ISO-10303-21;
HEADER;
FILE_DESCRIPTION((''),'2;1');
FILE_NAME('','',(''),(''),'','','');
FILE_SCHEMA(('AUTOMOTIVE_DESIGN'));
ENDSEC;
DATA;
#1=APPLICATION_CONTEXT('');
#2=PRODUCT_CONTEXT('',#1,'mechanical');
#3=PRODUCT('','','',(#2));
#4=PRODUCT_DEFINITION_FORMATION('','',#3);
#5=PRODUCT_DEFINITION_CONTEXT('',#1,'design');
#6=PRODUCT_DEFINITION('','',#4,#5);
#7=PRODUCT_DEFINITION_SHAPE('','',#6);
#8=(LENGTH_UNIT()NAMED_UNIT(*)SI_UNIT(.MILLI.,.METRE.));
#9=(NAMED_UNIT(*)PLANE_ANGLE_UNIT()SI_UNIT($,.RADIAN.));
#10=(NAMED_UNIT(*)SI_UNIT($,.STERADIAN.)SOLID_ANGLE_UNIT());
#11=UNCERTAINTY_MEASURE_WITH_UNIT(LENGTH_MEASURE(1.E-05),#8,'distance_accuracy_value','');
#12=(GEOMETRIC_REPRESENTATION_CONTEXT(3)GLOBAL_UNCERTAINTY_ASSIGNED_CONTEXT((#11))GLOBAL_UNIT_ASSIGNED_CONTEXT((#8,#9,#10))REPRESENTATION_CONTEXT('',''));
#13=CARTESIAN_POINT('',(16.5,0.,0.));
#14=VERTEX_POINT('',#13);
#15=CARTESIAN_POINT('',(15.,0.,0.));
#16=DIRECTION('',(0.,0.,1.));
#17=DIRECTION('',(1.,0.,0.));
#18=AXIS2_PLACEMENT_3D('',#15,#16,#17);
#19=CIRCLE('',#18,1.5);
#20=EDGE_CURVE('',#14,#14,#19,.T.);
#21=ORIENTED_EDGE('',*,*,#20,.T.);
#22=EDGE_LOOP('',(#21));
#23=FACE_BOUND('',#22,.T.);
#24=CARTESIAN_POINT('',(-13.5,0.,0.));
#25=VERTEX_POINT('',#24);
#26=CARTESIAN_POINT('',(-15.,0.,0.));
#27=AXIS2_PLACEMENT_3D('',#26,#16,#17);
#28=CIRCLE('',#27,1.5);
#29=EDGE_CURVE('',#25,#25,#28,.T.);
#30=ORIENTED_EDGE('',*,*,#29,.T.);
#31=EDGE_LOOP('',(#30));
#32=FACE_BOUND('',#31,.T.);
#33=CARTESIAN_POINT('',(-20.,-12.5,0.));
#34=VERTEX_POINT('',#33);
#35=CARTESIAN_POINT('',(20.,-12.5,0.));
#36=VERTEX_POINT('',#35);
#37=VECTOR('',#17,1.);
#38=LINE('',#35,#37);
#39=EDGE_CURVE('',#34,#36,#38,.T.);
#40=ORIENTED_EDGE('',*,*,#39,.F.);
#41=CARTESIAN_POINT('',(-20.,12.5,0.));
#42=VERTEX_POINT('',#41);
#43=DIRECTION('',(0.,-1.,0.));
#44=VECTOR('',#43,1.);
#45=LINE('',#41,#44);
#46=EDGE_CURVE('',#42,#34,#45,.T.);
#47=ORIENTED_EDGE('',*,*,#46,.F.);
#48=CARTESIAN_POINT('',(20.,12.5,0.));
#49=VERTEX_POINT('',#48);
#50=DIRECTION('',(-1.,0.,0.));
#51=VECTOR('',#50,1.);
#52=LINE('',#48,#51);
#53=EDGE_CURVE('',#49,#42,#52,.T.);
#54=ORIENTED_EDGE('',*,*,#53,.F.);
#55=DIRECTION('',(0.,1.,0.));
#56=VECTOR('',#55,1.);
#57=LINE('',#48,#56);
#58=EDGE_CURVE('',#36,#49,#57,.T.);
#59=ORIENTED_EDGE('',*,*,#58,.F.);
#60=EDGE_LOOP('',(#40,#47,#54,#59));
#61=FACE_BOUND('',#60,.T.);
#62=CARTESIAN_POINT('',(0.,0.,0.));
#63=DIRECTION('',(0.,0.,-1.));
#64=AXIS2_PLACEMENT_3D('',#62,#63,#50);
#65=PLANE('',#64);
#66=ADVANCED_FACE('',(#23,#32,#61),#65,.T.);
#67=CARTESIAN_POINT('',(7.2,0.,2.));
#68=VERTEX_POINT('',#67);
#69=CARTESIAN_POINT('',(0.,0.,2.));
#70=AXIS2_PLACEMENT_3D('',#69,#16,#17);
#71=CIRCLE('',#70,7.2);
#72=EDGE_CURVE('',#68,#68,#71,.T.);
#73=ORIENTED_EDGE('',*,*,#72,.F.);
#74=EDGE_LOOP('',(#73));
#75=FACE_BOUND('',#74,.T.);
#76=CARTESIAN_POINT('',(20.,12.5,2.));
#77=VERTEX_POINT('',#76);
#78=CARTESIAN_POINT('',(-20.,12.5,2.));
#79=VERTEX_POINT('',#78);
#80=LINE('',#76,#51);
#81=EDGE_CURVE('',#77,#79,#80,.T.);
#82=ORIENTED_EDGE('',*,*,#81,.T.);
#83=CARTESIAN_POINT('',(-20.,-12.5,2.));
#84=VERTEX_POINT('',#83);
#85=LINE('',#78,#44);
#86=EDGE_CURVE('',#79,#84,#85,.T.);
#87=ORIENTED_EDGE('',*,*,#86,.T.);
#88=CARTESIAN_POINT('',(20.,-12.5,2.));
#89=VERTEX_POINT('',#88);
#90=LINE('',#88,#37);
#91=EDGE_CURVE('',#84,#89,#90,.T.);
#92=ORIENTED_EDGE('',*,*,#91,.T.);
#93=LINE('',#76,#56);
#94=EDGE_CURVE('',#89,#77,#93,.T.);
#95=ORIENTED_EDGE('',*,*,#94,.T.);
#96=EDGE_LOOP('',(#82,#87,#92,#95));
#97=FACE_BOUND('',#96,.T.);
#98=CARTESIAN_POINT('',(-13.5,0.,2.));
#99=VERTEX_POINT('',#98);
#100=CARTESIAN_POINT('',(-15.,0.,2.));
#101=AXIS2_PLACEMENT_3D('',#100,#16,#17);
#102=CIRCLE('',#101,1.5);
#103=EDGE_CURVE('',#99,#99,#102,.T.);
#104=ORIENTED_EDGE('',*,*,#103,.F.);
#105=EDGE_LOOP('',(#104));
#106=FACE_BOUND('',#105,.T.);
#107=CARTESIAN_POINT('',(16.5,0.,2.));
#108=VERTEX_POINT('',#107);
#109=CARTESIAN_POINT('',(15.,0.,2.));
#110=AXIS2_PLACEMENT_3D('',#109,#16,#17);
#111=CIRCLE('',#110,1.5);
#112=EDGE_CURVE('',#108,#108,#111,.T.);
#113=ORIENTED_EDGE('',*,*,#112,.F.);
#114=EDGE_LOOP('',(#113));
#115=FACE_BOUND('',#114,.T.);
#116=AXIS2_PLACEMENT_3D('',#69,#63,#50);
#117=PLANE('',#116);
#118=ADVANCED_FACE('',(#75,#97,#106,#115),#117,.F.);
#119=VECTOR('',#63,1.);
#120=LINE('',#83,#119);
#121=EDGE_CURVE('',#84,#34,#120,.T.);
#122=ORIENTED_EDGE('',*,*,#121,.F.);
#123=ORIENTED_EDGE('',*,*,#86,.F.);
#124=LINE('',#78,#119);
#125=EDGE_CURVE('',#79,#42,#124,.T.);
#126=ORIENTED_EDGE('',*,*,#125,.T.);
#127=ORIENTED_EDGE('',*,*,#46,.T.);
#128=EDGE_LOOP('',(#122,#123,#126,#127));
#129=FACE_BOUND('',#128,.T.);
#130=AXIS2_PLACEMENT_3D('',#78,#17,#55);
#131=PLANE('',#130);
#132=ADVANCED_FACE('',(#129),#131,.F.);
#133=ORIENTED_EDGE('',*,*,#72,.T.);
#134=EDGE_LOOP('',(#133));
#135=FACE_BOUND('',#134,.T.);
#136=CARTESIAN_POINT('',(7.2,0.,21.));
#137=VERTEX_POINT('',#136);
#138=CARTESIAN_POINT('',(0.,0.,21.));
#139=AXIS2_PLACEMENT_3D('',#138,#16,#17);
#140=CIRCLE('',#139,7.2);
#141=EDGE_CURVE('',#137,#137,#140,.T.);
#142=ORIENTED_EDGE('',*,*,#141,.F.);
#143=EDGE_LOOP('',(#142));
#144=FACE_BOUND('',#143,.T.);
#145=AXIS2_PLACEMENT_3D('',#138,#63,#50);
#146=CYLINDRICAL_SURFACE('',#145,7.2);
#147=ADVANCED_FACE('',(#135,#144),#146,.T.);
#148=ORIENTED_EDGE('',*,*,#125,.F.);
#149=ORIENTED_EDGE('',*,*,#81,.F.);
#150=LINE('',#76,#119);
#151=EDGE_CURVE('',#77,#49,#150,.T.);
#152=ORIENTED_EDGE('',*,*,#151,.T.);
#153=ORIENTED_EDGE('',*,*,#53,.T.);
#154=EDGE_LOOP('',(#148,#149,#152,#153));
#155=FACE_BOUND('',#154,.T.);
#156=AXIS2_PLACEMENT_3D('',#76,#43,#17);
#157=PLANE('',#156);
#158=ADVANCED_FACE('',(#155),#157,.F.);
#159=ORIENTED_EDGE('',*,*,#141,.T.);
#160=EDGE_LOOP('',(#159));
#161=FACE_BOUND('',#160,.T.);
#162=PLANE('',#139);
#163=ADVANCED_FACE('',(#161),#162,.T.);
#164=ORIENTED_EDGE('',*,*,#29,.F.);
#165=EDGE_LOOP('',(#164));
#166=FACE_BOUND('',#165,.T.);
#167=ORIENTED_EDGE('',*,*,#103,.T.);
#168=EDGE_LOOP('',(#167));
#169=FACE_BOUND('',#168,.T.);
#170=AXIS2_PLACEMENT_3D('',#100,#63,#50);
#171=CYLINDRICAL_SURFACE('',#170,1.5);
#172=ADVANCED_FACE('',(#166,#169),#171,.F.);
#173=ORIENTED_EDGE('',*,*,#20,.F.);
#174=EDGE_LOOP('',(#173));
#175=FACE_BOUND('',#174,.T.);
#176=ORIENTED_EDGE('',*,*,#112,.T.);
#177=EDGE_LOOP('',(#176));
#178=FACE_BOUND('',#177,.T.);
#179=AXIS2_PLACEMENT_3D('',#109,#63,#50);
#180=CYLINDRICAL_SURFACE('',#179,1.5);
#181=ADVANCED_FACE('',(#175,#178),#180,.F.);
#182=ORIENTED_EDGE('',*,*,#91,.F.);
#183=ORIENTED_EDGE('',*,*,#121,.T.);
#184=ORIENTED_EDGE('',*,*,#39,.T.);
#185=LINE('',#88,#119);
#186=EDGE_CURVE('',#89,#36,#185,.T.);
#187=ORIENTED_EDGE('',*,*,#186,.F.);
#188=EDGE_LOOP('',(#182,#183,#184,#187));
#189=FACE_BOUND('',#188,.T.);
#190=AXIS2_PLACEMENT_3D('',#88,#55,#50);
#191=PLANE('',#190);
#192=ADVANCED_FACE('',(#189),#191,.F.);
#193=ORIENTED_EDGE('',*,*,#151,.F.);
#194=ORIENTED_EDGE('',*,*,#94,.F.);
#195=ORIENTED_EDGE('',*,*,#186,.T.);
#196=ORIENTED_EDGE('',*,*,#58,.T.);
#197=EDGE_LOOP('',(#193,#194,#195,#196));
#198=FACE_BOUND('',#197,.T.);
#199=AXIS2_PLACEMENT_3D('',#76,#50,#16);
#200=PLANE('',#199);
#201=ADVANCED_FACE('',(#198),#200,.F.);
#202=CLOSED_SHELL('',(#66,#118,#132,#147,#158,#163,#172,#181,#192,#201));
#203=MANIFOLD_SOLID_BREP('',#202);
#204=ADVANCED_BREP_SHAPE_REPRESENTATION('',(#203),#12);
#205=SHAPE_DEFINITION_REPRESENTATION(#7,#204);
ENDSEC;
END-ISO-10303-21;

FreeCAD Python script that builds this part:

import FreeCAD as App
import Part
import Sketcher


def add_polygon(sketch, points):
    """Adds a closed chain of lines whose ends are joined by coincident constraints."""
    first, n = sketch.GeometryCount, len(points)
    for a, b in zip(points, points[1:] + points[:1]):
        sketch.addGeometry(Part.LineSegment(App.Vector(*a, 0), App.Vector(*b, 0)), False)
    for i in range(n):
        sketch.addConstraint(Sketcher.Constraint("Coincident", first + i, 2, first + (i + 1) % n, 1))

doc = App.newDocument("Part")
body = doc.addObject("PartDesign::Body", "Body")

# Sketch on XY plane
sketch1 = doc.addObject("Sketcher::SketchObject", "Sketch")
body.addObject(sketch1)
sketch1.AttachmentSupport = (doc.XY_Plane, [""])
sketch1.MapMode = "FlatFace"
add_polygon(sketch1, [(-20, 12.5), (-20, -12.5), (20, -12.5), (20, 12.5)])  # lines 0-3
sketch1.addGeometry(Part.Circle(App.Vector(-15, 0, 0), App.Vector(0, 0, 1), 1.5), False)  # 4
sketch1.addGeometry(Part.Circle(App.Vector(15, 0, 0), App.Vector(0, 0, 1), 1.5), False)  # 5
sketch1.addConstraint([
    Sketcher.Constraint("Vertical", 0),
    Sketcher.Constraint("Horizontal", 1),
    Sketcher.Constraint("Vertical", 2),
    Sketcher.Constraint("Horizontal", 3),
    Sketcher.Constraint("Equal", 4, 5),
    Sketcher.Constraint("Symmetric", 4, 3, 5, 3, -1, 1),
    Sketcher.Constraint("Symmetric", 0, 2, 2, 2, -1, 1),
    Sketcher.Constraint("PointOnObject", 4, 3, -1),
    Sketcher.Constraint("Diameter", 4, 3.0),
    Sketcher.Constraint("DistanceX", 1, 1, 1, 2, 40.0),
    Sketcher.Constraint("DistanceY", 0, 2, 0, 1, 25.0),
    Sketcher.Constraint("DistanceX", 4, 3, -1, 1, 15.0),
])
pad1 = doc.addObject("PartDesign::Pad", "Pad")
body.addObject(pad1)
pad1.Profile = sketch1
pad1.Length = 2

# Sketch on XY plane
sketch2 = doc.addObject("Sketcher::SketchObject", "Sketch001")
body.addObject(sketch2)
sketch2.AttachmentSupport = (doc.XY_Plane, [""])
sketch2.MapMode = "FlatFace"
sketch2.AttachmentOffset = App.Placement(App.Vector(0, 0, 2), App.Rotation())
sketch2.addGeometry(Part.Circle(App.Vector(0, 0, 0), App.Vector(0, 0, 1), 7), False)
sketch2.addConstraint([
    Sketcher.Constraint("Coincident", 0, 3, -1, 1),
    Sketcher.Constraint("Diameter", 0, 14.4),
])
pad2 = doc.addObject("PartDesign::Pad", "Pad001")
body.addObject(pad2)
pad2.Profile = sketch2
pad2.Length = 19

doc.recompute()
